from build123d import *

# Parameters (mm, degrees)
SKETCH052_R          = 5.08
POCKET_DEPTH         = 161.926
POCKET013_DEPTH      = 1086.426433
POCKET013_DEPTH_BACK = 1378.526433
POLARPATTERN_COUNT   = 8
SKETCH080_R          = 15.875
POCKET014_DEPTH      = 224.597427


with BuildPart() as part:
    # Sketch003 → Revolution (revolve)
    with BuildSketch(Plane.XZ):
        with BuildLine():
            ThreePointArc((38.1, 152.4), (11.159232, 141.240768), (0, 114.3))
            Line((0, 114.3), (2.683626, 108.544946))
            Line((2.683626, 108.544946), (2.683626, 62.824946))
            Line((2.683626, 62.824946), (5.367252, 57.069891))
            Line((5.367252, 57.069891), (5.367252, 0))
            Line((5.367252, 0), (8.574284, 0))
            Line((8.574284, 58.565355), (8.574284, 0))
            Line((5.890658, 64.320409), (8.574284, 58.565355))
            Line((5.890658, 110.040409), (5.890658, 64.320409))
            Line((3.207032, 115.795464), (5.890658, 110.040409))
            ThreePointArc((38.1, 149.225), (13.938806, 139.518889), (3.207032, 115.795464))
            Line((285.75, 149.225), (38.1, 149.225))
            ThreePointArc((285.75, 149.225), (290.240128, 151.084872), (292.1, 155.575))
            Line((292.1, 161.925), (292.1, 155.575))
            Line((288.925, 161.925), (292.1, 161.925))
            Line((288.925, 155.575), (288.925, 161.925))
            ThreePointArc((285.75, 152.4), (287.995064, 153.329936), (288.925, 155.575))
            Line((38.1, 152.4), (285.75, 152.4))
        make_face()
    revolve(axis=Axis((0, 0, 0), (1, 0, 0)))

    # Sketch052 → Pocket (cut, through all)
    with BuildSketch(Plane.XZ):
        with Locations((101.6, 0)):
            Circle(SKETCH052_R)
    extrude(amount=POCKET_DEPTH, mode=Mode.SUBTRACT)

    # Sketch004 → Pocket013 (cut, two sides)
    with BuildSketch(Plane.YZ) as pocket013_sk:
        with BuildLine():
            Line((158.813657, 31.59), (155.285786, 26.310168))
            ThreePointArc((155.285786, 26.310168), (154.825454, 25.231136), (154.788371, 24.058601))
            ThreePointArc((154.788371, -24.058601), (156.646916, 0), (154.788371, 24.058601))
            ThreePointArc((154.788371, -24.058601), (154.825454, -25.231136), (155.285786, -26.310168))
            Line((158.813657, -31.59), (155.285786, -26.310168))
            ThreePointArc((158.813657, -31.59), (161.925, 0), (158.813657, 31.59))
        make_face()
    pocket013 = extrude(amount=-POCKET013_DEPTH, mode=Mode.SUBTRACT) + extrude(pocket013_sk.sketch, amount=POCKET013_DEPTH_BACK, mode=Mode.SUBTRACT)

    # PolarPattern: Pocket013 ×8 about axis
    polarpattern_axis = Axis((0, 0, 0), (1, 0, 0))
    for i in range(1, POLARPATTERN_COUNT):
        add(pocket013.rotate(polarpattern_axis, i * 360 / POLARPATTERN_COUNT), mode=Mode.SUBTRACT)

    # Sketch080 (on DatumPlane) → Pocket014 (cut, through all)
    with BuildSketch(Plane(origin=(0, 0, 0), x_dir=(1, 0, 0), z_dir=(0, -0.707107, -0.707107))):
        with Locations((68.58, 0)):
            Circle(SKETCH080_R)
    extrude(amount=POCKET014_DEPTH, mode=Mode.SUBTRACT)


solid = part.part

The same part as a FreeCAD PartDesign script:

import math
import FreeCAD as App
import Part
import Sketcher
from FreeCAD import Vector
Q = App.Units.Quantity

doc = App.newDocument("Part")
body = doc.addObject("PartDesign::Body", "Body")

sketch1 = body.newObject("Sketcher::SketchObject", "Sketch")
sketch1.AttachmentSupport = (doc.getObject("XZ_Plane"), [""])
sketch1.MapMode = "FlatFace"
sketch1.addGeometry([
    Part.ArcOfCircle(Part.Circle(Vector(38.1, 114.3, 0), Vector(0, 0, 1), 38.1), math.radians(90), math.radians(180)),
    Part.LineSegment(Vector(0, 114.3, 0), Vector(2.7, 108.5, 0)),
    Part.LineSegment(Vector(2.7, 108.5, 0), Vector(2.7, 62.8, 0)),
    Part.LineSegment(Vector(2.7, 62.8, 0), Vector(5.4, 57.1, 0)),
    Part.LineSegment(Vector(5.4, 57.1, 0), Vector(5.4, 0, 0)),
    Part.LineSegment(Vector(5.4, 0, 0), Vector(8.6, 0, 0)),
    Part.LineSegment(Vector(8.6, 0, 0), Vector(8.6, 58.6, 0)),
    Part.LineSegment(Vector(8.6, 58.6, 0), Vector(5.9, 64.3, 0)),
    Part.LineSegment(Vector(5.9, 64.3, 0), Vector(5.9, 110, 0)),
    Part.LineSegment(Vector(5.9, 110, 0), Vector(3.2, 115.8, 0)),
    Part.ArcOfCircle(Part.Circle(Vector(38.1, 114.3, 0), Vector(0, 0, 1), 34.9), math.radians(90), math.radians(178)),
    Part.LineSegment(Vector(38.1, 149.2, 0), Vector(285.8, 149.2, 0)),
    Part.ArcOfCircle(Part.Circle(Vector(285.7, 155.6, 0), Vector(0, 0, 1), 6.4), math.radians(-90), math.radians(0)),
    Part.LineSegment(Vector(292.1, 155.6, 0), Vector(292.1, 161.9, 0)),
    Part.LineSegment(Vector(292.1, 161.9, 0), Vector(288.9, 161.9, 0)),
    Part.LineSegment(Vector(288.9, 161.9, 0), Vector(288.9, 155.6, 0)),
    Part.ArcOfCircle(Part.Circle(Vector(285.7, 155.6, 0), Vector(0, 0, 1), 3.2), math.radians(-90), math.radians(0)),
    Part.LineSegment(Vector(285.8, 152.4, 0), Vector(38.1, 152.4, 0)),
], False)
sketch1.addConstraint([
    Sketcher.Constraint("Coincident", 0, 2, 1, 1),
    Sketcher.Constraint("Coincident", 1, 2, 2, 1),
    Sketcher.Constraint("Coincident", 2, 2, 3, 1),
    Sketcher.Constraint("Coincident", 3, 2, 4, 1),
    Sketcher.Constraint("Coincident", 4, 2, 5, 1),
    Sketcher.Constraint("Coincident", 5, 2, 6, 1),
    Sketcher.Constraint("Coincident", 6, 2, 7, 1),
    Sketcher.Constraint("Coincident", 7, 2, 8, 1),
    Sketcher.Constraint("Coincident", 8, 2, 9, 1),
    Sketcher.Constraint("Coincident", 9, 2, 10, 2),
    Sketcher.Constraint("Tangent", 10, 1, 11, 1),
    Sketcher.Constraint("Tangent", 11, 2, 12, 1),
    Sketcher.Constraint("Tangent", 12, 2, 13, 1),
    Sketcher.Constraint("Coincident", 13, 2, 14, 1),
    Sketcher.Constraint("Coincident", 14, 2, 15, 1),
    Sketcher.Constraint("Tangent", 15, 2, 16, 2),
    Sketcher.Constraint("Tangent", 16, 1, 17, 1),
    Sketcher.Constraint("Tangent", 17, 2, 0, 1),
    Sketcher.Constraint("Vertical", 2),
    Sketcher.Constraint("Vertical", 4),
    Sketcher.Constraint("Horizontal", 5),
    Sketcher.Constraint("Vertical", 6),
    Sketcher.Constraint("Vertical", 8),
    Sketcher.Constraint("Horizontal", 11),
    Sketcher.Constraint("Vertical", 13),
    Sketcher.Constraint("Horizontal", 14),
    Sketcher.Constraint("Vertical", 15),
    Sketcher.Constraint("Horizontal", 17),
    Sketcher.Constraint("Coincident", 10, 3, 0, 3),
    Sketcher.Constraint("Coincident", 16, 3, 12, 3),
    Sketcher.Constraint("PointOnObject", 0, 2, -2),
    Sketcher.Constraint("PointOnObject", 4, 2, -1),
    Sketcher.Constraint("Parallel", 1, 3),
    Sketcher.Constraint("Parallel", 3, 7),
    Sketcher.Constraint("Parallel", 7, 9),
    Sketcher.Constraint("Horizontal", 10, 3, 0, 2),
    Sketcher.Constraint("Equal", 2, 8),
    Sketcher.Constraint("Equal", 1, 3),
    Sketcher.Constraint("Equal", 3, 7),
    Sketcher.Constraint("Equal", 7, 9),
    Sketcher.Constraint("Radius", 0, Q("1.5 in")),
    Sketcher.Constraint("Radius", 12, Q("0.25 in")),
    Sketcher.Constraint("DistanceY", 2, 2, 2, 1, Q("1.8 in")),
    Sketcher.Constraint("DistanceY", -1, 1, 16, 1, Q("6 in")),
    Sketcher.Constraint("Angle", 1, Q("-64.999998 deg")),
    Sketcher.Constraint("Radius", 10, Q("1.375 in")),
    Sketcher.Constraint("DistanceX", 10, 1, 12, 2, Q("10 in")),
    Sketcher.Constraint("DistanceY", 13, 1, 13, 2, Q("0.25 in")),
    Sketcher.Constraint("Distance", 1, Q("0.25 in")),
    Sketcher.Constraint("DistanceX", 5, 1, 5, 2, 3.207032),
])
revolution = body.newObject("PartDesign::Revolution", "Revolution")
revolution.Profile = sketch1
revolution.ReferenceAxis = (sketch1, ["H_Axis"])
revolution.Angle = 360

sketch2 = body.newObject("Sketcher::SketchObject", "Sketch001")
sketch2.AttachmentSupport = (doc.getObject("XZ_Plane"), [""])
sketch2.MapMode = "FlatFace"
sketch2.addGeometry(Part.Circle(Vector(102, 0, 0), Vector(0, 0, 1), 5), False)
sketch2.addConstraint([
    Sketcher.Constraint("PointOnObject", 0, 3, -1),
    Sketcher.Constraint("Diameter", 0, Q("0.4 in")),
    Sketcher.Constraint("DistanceX", -1, 1, 0, 3, Q("4 in")),
])
pocket1 = body.newObject("PartDesign::Pocket", "Pocket")
pocket1.Profile = sketch2
pocket1.Type = "ThroughAll"
pocket1.Reversed = True

sketch3 = body.newObject("Sketcher::SketchObject", "Sketch002")
sketch3.AttachmentSupport = (doc.getObject("YZ_Plane"), [""])
sketch3.MapMode = "FlatFace"
sketch3.addGeometry([
    Part.LineSegment(Vector(158.8, 31.6, 0), Vector(155.3, 26.3, 0)),
    Part.ArcOfCircle(Part.Circle(Vector(157.9, 24.5, 0), Vector(0, 0, 1), 3.2), math.radians(146), math.radians(189)),
    Part.ArcOfCircle(Part.Circle(Vector(0, 0, 0), Vector(0, 0, 1), 156.6), math.radians(-8.83), math.radians(8.83)),
    Part.ArcOfCircle(Part.Circle(Vector(157.9, -24.5, 0), Vector(0, 0, 1), 3.2), math.radians(171), math.radians(214)),
    Part.LineSegment(Vector(155.3, -26.3, 0), Vector(158.8, -31.6, 0)),
    Part.ArcOfCircle(Part.Circle(Vector(0, 0, 0), Vector(0, 0, 1), 161.9), math.radians(-11), math.radians(11)),
], False)
sketch3.addConstraint([
    Sketcher.Constraint("Tangent", 0, 2, 1, 1),
    Sketcher.Constraint("Tangent", 1, 2, 2, 2),
    Sketcher.Constraint("Tangent", 2, 1, 3, 1),
    Sketcher.Constraint("Tangent", 3, 2, 4, 1),
    Sketcher.Constraint("Coincident", 4, 2, 5, 1),
    Sketcher.Constraint("Coincident", 5, 2, 0, 1),
    Sketcher.Constraint("Equal", 1, 3),
    Sketcher.Constraint("Symmetric", 1, 3, 3, 3, -1),
    Sketcher.Constraint("Symmetric", 4, 2, 5, 2, -1),
    Sketcher.Constraint("Distance", 0, Q("0.25 in")),
    Sketcher.Constraint("Angle", 0, Q("-123.75 deg")),
    Sketcher.Constraint("Radius", 2, 156.646859),
    Sketcher.Constraint("Radius", 5, 161.92502),
    Sketcher.Constraint("Radius", 1, 3.174994),
    Sketcher.Constraint("DistanceY", -1, 1, 1, 2, 24.058601),
    Sketcher.Constraint("DistanceX", -1, 1, 1, 2, 154.788371),
])
pocket2 = body.newObject("PartDesign::Pocket", "Pocket001")
pocket2.Profile = sketch3
pocket2.Type = "ThroughAll"
pocket2.Midplane = True
doc.recompute()

polarpattern = body.newObject("PartDesign::PolarPattern", "PolarPattern")
polarpattern.Originals = [pocket2]
polarpattern.Axis = (doc.getObject("X_Axis"), [""])
polarpattern.Angle = 360
polarpattern.Occurrences = 8
body.Tip = polarpattern

sketch4 = body.newObject("Sketcher::SketchObject", "Sketch003")
sketch4.Placement = App.Placement(Vector(0, 0, 0), App.Rotation(Vector(1, 0, 0), Vector(0, -0.707106781, 0.707106781), Vector(0, -0.707106781, -0.707106781), "ZXY"))
sketch4.addGeometry(Part.Circle(Vector(69, 0, 0), Vector(0, 0, 1), 16), False)
sketch4.addConstraint([
    Sketcher.Constraint("PointOnObject", 0, 3, -1),
    Sketcher.Constraint("Diameter", 0, Q("1.25 in")),
    Sketcher.Constraint("DistanceX", -1, 1, 0, 3, Q("2.7 in")),
])
pocket3 = body.newObject("PartDesign::Pocket", "Pocket002")
pocket3.Profile = sketch4
pocket3.Type = "ThroughAll"
pocket3.Reversed = True

doc.recompute()
